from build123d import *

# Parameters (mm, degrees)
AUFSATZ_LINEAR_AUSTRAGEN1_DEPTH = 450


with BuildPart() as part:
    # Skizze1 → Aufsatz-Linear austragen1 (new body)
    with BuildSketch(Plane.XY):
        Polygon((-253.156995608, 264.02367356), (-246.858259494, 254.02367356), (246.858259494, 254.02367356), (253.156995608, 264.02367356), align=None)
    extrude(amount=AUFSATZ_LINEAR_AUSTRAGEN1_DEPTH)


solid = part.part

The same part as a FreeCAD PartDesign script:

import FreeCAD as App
import Part
import Sketcher
from FreeCAD import Vector
Q = App.Units.Quantity

doc = App.newDocument("Part")
params = doc.addObject("Spreadsheet::Sheet", "Params")
for row, (alias, value) in enumerate([
    ("pad1_length", "450 mm"),
], start=1):
    params.set(f"A{row}", alias)
    params.set(f"B{row}", "=" + value)
    params.setAlias(f"B{row}", alias)

body = doc.addObject("PartDesign::Body", "Body")

sketch1 = body.newObject("Sketcher::SketchObject", "Sketch")
sketch1.AttachmentSupport = (doc.getObject("XY_Plane"), [""])
sketch1.MapMode = "FlatFace"
sketch1.addGeometry([
    Part.LineSegment(Vector(-253, 264, 0), Vector(-247, 254, 0)),
    Part.LineSegment(Vector(-247, 254, 0), Vector(247, 254, 0)),
    Part.LineSegment(Vector(247, 254, 0), Vector(253, 264, 0)),
    Part.LineSegment(Vector(253, 264, 0), Vector(-253, 264, 0)),
], False)
sketch1.addConstraint([
    Sketcher.Constraint("Coincident", 0, 2, 1, 1),
    Sketcher.Constraint("Coincident", 1, 2, 2, 1),
    Sketcher.Constraint("Coincident", 2, 2, 3, 1),
    Sketcher.Constraint("Coincident", 3, 2, 0, 1),
    Sketcher.Constraint("Horizontal", 1),
    Sketcher.Constraint("Horizontal", 3),
    Sketcher.Constraint("Equal", 0, 2),
    Sketcher.Constraint("DistanceY", 1, 2, 2, 2, Q("10 mm")),
    Sketcher.Constraint("DistanceX", 1, 1, 1, 2, Q("493.716519 mm")),
    Sketcher.Constraint("DistanceX", 3, 2, 3, 1, Q("506.313991 mm")),
    Sketcher.Constraint("DistanceX", 0, 2, -1, 1, Q("246.858259 mm")),
    Sketcher.Constraint("DistanceY", -1, 1, 0, 2, Q("254.023674 mm")),
])
pad1 = body.newObject("PartDesign::Pad", "Pad")
pad1.Profile = sketch1
pad1.setExpression("Length", "Params.pad1_length")

doc.recompute()
